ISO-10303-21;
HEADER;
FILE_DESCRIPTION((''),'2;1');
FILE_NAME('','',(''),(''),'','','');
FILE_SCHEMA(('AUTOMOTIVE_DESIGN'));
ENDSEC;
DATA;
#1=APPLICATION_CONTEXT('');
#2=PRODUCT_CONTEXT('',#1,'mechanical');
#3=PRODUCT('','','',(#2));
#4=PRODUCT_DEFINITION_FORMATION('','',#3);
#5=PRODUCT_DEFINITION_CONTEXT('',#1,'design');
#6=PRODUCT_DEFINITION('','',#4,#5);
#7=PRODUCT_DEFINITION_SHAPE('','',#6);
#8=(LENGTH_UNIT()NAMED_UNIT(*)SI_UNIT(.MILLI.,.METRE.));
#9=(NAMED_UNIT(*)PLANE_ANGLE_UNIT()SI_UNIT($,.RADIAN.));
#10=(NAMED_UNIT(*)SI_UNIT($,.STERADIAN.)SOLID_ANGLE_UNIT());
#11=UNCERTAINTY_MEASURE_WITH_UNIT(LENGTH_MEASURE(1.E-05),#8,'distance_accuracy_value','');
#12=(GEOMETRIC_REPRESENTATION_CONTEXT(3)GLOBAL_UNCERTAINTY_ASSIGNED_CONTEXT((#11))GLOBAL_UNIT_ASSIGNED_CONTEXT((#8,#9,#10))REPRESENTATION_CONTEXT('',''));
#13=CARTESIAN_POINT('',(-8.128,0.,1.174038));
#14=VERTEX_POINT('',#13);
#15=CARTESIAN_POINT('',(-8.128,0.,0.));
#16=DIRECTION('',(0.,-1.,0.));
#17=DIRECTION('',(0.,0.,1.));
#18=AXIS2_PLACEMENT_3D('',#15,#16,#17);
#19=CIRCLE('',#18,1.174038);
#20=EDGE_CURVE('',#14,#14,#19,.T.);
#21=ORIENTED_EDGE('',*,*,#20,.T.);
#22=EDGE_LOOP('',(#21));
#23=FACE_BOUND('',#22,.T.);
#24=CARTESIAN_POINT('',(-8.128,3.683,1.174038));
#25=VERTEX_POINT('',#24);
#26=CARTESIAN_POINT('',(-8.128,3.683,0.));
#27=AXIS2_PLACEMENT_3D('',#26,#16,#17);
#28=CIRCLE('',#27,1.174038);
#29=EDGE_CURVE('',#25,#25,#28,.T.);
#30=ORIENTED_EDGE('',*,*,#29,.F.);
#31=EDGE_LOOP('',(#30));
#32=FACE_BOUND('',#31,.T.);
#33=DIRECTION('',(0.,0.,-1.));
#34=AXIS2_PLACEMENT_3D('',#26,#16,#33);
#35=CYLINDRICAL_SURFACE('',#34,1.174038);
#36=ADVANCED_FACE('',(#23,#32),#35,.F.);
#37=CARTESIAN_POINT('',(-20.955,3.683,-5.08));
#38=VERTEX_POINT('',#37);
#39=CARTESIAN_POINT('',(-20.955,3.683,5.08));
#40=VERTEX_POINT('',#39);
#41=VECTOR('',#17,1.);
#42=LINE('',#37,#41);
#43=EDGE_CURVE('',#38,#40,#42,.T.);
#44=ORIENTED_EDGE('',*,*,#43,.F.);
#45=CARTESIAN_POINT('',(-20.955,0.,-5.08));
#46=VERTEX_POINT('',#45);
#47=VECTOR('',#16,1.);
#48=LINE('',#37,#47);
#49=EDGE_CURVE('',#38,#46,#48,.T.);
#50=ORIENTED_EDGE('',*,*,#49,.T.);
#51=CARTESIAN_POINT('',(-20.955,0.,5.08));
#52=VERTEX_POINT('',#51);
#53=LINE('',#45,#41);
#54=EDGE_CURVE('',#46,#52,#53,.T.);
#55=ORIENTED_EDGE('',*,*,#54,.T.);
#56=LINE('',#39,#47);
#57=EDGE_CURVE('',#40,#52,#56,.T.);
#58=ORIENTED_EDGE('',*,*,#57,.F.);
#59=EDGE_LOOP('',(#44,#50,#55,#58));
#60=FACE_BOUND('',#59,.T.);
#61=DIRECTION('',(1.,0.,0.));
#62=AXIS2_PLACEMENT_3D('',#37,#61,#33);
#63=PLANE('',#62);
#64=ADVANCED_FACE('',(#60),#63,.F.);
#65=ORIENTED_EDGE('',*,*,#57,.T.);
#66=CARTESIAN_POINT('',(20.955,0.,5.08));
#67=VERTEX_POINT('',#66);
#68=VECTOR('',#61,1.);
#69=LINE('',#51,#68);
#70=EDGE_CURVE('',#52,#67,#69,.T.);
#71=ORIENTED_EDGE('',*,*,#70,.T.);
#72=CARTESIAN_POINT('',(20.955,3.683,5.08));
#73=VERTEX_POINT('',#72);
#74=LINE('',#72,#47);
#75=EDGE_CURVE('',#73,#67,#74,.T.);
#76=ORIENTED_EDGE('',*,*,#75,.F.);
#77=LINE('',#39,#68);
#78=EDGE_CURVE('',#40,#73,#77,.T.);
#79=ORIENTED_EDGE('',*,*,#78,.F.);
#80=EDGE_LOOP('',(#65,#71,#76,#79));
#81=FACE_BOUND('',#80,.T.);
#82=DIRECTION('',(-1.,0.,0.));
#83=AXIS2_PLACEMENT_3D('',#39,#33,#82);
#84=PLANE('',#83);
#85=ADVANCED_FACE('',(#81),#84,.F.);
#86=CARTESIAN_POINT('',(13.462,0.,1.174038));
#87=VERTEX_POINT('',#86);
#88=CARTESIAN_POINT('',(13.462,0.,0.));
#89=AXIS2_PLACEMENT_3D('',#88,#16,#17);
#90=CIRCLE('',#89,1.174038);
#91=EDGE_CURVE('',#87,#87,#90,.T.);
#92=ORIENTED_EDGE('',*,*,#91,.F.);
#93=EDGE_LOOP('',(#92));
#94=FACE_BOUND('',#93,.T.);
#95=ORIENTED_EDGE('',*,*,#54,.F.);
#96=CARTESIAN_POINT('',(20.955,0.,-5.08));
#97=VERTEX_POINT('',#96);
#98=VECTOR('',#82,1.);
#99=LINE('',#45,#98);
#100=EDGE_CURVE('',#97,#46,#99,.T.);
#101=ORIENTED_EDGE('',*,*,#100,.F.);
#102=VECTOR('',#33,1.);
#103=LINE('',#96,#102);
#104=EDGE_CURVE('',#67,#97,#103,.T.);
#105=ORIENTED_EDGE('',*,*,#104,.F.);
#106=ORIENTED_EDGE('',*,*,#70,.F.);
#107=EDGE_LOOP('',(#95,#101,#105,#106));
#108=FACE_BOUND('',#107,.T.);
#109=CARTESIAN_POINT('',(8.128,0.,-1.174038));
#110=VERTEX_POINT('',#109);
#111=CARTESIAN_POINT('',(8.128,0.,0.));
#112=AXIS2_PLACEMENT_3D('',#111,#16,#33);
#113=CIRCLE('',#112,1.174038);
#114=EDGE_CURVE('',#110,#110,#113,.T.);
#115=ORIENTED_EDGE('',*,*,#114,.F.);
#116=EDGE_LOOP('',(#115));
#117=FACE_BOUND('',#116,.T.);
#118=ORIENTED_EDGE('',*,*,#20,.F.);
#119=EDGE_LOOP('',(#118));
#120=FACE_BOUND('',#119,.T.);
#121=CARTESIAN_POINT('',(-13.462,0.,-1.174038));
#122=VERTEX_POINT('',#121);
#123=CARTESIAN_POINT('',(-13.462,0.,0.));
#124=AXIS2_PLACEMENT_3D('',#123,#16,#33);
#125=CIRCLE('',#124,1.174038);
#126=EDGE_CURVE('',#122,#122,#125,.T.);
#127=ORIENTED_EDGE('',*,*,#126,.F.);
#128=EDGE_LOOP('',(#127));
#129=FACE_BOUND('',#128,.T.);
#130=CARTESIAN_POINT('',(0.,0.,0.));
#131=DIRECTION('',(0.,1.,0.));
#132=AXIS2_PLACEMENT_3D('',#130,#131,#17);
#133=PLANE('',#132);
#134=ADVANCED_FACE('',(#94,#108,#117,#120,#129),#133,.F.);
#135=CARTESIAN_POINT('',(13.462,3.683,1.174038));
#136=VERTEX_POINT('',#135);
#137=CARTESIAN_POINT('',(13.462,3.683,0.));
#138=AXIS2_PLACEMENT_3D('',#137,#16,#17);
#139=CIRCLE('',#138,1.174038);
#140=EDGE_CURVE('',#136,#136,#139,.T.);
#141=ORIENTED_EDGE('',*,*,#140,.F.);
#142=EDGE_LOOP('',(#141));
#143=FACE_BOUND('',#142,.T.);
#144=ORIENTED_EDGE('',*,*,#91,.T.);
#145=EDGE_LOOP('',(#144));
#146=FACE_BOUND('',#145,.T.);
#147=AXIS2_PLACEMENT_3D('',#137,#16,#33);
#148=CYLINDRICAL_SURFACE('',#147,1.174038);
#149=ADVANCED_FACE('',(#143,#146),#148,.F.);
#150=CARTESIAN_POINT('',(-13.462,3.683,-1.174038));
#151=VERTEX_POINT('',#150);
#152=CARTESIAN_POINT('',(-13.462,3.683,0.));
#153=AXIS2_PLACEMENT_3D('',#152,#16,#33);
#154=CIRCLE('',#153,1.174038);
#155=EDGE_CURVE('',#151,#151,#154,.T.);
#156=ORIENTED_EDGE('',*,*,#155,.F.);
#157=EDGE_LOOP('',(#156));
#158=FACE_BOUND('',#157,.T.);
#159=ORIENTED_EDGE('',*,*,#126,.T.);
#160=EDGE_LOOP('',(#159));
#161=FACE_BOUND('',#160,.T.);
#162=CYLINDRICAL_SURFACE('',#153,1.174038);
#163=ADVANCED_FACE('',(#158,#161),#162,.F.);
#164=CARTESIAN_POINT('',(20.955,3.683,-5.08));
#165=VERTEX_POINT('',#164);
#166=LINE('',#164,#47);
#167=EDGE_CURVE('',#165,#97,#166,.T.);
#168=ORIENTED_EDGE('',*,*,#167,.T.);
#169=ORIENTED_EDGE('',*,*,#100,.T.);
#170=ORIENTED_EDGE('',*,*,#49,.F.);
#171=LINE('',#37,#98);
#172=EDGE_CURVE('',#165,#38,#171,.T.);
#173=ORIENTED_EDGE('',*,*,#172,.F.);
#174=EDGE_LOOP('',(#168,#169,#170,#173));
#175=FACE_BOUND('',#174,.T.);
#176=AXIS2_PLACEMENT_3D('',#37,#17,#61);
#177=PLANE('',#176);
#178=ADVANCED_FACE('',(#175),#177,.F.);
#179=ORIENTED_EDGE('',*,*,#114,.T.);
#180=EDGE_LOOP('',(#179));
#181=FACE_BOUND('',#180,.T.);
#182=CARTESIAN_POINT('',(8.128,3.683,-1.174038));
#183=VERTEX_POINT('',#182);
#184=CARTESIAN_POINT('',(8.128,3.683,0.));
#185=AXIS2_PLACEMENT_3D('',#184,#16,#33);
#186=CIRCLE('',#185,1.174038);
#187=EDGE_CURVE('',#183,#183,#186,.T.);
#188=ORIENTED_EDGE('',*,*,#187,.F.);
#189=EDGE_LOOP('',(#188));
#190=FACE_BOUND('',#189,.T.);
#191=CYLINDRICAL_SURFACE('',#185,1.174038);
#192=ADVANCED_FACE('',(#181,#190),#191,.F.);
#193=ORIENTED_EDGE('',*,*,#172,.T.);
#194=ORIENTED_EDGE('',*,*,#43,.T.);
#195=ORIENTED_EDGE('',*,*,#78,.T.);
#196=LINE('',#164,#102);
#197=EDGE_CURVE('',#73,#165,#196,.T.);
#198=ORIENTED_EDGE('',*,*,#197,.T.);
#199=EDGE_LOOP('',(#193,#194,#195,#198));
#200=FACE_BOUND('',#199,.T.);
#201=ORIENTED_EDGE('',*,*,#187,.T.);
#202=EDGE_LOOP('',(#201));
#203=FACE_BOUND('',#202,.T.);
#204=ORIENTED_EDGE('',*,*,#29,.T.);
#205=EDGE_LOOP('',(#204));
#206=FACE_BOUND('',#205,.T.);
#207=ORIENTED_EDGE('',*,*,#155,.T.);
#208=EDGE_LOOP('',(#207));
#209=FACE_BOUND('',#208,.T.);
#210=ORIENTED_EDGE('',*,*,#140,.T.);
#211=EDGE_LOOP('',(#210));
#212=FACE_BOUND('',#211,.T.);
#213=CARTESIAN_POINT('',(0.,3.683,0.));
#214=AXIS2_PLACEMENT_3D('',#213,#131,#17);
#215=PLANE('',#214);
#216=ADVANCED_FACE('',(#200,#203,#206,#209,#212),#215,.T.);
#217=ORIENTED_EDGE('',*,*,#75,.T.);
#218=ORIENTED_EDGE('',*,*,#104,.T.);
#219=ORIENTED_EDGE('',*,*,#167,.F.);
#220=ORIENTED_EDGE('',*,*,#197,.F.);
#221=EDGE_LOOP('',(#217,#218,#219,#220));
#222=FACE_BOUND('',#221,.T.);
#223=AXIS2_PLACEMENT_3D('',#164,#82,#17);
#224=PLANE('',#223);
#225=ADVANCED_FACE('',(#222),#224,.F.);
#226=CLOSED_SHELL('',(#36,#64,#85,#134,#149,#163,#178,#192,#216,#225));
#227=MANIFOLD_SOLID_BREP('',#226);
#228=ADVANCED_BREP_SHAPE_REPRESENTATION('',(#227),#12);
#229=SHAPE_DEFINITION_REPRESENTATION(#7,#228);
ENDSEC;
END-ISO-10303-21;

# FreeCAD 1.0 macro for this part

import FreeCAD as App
import Part
import Sketcher
from FreeCAD import Vector
Q = App.Units.Quantity


def add_polygon(sketch, points):
    """Adds a closed chain of lines whose ends are joined by coincident constraints."""
    first, n = sketch.GeometryCount, len(points)
    for a, b in zip(points, points[1:] + points[:1]):
        sketch.addGeometry(Part.LineSegment(App.Vector(*a, 0), App.Vector(*b, 0)), False)
    for i in range(n):
        sketch.addConstraint(Sketcher.Constraint("Coincident", first + i, 2, first + (i + 1) % n, 1))

doc = App.newDocument("Part")
body = doc.addObject("PartDesign::Body", "Body")

sketch1 = body.newObject("Sketcher::SketchObject", "Sketch")
sketch1.AttachmentSupport = (doc.getObject("XZ_Plane"), [""])
sketch1.MapMode = "FlatFace"
add_polygon(sketch1, [(-21, -5), (-21, 5), (21, 5), (21, -5)])
sketch1.addConstraint([
    Sketcher.Constraint("Vertical", 0),
    Sketcher.Constraint("Horizontal", 1),
    Sketcher.Constraint("Vertical", 2),
    Sketcher.Constraint("Horizontal", 3),
    Sketcher.Constraint("Symmetric", 0, 2, 2, 2, -1, 1),
    Sketcher.Constraint("DistanceY", 0, 1, 0, 2, Q("0.4 in")),
    Sketcher.Constraint("DistanceX", 1, 1, 1, 2, Q("1.65 in")),
])
pad1 = body.newObject("PartDesign::Pad", "Pad")
pad1.Profile = sketch1
pad1.Length = Q("0.145 in")
pad1.Reversed = True

sketch2 = body.newObject("Sketcher::SketchObject", "Sketch001")
sketch2.AttachmentSupport = (doc.getObject("XZ_Plane"), [""])
sketch2.MapMode = "FlatFace"
sketch2.addGeometry([
    Part.Circle(Vector(-13.5, 0, 0), Vector(0, 0, 1), 1.2),
    Part.Circle(Vector(-8.1, 0, 0), Vector(0, 0, 1), 1.2),
    Part.Circle(Vector(8.1, 0, 0), Vector(0, 0, 1), 1.2),
    Part.Circle(Vector(13.5, 0, 0), Vector(0, 0, 1), 1.2),
], False)
sketch2.addConstraint([
    Sketcher.Constraint("Equal", 0, 1),
    Sketcher.Constraint("Equal", 1, 2),
    Sketcher.Constraint("Equal", 2, 3),
    Sketcher.Constraint("Symmetric", 1, 3, 2, 3, -1, 1),
    Sketcher.Constraint("Symmetric", 0, 3, 3, 3, -1, 1),
    Sketcher.Constraint("PointOnObject", 0, 3, -1),
    Sketcher.Constraint("PointOnObject", 1, 3, -1),
    Sketcher.Constraint("DistanceX", 0, 3, -1, 1, Q("0.53 in")),
    Sketcher.Constraint("DistanceX", 1, 3, -1, 1, Q("0.32 in")),
    Sketcher.Constraint("Diameter", 0, Q("2.348075 mm")),
])
pocket1 = body.newObject("PartDesign::Pocket", "Pocket")
pocket1.Profile = sketch2
pocket1.Type = "ThroughAll"

doc.recompute()
